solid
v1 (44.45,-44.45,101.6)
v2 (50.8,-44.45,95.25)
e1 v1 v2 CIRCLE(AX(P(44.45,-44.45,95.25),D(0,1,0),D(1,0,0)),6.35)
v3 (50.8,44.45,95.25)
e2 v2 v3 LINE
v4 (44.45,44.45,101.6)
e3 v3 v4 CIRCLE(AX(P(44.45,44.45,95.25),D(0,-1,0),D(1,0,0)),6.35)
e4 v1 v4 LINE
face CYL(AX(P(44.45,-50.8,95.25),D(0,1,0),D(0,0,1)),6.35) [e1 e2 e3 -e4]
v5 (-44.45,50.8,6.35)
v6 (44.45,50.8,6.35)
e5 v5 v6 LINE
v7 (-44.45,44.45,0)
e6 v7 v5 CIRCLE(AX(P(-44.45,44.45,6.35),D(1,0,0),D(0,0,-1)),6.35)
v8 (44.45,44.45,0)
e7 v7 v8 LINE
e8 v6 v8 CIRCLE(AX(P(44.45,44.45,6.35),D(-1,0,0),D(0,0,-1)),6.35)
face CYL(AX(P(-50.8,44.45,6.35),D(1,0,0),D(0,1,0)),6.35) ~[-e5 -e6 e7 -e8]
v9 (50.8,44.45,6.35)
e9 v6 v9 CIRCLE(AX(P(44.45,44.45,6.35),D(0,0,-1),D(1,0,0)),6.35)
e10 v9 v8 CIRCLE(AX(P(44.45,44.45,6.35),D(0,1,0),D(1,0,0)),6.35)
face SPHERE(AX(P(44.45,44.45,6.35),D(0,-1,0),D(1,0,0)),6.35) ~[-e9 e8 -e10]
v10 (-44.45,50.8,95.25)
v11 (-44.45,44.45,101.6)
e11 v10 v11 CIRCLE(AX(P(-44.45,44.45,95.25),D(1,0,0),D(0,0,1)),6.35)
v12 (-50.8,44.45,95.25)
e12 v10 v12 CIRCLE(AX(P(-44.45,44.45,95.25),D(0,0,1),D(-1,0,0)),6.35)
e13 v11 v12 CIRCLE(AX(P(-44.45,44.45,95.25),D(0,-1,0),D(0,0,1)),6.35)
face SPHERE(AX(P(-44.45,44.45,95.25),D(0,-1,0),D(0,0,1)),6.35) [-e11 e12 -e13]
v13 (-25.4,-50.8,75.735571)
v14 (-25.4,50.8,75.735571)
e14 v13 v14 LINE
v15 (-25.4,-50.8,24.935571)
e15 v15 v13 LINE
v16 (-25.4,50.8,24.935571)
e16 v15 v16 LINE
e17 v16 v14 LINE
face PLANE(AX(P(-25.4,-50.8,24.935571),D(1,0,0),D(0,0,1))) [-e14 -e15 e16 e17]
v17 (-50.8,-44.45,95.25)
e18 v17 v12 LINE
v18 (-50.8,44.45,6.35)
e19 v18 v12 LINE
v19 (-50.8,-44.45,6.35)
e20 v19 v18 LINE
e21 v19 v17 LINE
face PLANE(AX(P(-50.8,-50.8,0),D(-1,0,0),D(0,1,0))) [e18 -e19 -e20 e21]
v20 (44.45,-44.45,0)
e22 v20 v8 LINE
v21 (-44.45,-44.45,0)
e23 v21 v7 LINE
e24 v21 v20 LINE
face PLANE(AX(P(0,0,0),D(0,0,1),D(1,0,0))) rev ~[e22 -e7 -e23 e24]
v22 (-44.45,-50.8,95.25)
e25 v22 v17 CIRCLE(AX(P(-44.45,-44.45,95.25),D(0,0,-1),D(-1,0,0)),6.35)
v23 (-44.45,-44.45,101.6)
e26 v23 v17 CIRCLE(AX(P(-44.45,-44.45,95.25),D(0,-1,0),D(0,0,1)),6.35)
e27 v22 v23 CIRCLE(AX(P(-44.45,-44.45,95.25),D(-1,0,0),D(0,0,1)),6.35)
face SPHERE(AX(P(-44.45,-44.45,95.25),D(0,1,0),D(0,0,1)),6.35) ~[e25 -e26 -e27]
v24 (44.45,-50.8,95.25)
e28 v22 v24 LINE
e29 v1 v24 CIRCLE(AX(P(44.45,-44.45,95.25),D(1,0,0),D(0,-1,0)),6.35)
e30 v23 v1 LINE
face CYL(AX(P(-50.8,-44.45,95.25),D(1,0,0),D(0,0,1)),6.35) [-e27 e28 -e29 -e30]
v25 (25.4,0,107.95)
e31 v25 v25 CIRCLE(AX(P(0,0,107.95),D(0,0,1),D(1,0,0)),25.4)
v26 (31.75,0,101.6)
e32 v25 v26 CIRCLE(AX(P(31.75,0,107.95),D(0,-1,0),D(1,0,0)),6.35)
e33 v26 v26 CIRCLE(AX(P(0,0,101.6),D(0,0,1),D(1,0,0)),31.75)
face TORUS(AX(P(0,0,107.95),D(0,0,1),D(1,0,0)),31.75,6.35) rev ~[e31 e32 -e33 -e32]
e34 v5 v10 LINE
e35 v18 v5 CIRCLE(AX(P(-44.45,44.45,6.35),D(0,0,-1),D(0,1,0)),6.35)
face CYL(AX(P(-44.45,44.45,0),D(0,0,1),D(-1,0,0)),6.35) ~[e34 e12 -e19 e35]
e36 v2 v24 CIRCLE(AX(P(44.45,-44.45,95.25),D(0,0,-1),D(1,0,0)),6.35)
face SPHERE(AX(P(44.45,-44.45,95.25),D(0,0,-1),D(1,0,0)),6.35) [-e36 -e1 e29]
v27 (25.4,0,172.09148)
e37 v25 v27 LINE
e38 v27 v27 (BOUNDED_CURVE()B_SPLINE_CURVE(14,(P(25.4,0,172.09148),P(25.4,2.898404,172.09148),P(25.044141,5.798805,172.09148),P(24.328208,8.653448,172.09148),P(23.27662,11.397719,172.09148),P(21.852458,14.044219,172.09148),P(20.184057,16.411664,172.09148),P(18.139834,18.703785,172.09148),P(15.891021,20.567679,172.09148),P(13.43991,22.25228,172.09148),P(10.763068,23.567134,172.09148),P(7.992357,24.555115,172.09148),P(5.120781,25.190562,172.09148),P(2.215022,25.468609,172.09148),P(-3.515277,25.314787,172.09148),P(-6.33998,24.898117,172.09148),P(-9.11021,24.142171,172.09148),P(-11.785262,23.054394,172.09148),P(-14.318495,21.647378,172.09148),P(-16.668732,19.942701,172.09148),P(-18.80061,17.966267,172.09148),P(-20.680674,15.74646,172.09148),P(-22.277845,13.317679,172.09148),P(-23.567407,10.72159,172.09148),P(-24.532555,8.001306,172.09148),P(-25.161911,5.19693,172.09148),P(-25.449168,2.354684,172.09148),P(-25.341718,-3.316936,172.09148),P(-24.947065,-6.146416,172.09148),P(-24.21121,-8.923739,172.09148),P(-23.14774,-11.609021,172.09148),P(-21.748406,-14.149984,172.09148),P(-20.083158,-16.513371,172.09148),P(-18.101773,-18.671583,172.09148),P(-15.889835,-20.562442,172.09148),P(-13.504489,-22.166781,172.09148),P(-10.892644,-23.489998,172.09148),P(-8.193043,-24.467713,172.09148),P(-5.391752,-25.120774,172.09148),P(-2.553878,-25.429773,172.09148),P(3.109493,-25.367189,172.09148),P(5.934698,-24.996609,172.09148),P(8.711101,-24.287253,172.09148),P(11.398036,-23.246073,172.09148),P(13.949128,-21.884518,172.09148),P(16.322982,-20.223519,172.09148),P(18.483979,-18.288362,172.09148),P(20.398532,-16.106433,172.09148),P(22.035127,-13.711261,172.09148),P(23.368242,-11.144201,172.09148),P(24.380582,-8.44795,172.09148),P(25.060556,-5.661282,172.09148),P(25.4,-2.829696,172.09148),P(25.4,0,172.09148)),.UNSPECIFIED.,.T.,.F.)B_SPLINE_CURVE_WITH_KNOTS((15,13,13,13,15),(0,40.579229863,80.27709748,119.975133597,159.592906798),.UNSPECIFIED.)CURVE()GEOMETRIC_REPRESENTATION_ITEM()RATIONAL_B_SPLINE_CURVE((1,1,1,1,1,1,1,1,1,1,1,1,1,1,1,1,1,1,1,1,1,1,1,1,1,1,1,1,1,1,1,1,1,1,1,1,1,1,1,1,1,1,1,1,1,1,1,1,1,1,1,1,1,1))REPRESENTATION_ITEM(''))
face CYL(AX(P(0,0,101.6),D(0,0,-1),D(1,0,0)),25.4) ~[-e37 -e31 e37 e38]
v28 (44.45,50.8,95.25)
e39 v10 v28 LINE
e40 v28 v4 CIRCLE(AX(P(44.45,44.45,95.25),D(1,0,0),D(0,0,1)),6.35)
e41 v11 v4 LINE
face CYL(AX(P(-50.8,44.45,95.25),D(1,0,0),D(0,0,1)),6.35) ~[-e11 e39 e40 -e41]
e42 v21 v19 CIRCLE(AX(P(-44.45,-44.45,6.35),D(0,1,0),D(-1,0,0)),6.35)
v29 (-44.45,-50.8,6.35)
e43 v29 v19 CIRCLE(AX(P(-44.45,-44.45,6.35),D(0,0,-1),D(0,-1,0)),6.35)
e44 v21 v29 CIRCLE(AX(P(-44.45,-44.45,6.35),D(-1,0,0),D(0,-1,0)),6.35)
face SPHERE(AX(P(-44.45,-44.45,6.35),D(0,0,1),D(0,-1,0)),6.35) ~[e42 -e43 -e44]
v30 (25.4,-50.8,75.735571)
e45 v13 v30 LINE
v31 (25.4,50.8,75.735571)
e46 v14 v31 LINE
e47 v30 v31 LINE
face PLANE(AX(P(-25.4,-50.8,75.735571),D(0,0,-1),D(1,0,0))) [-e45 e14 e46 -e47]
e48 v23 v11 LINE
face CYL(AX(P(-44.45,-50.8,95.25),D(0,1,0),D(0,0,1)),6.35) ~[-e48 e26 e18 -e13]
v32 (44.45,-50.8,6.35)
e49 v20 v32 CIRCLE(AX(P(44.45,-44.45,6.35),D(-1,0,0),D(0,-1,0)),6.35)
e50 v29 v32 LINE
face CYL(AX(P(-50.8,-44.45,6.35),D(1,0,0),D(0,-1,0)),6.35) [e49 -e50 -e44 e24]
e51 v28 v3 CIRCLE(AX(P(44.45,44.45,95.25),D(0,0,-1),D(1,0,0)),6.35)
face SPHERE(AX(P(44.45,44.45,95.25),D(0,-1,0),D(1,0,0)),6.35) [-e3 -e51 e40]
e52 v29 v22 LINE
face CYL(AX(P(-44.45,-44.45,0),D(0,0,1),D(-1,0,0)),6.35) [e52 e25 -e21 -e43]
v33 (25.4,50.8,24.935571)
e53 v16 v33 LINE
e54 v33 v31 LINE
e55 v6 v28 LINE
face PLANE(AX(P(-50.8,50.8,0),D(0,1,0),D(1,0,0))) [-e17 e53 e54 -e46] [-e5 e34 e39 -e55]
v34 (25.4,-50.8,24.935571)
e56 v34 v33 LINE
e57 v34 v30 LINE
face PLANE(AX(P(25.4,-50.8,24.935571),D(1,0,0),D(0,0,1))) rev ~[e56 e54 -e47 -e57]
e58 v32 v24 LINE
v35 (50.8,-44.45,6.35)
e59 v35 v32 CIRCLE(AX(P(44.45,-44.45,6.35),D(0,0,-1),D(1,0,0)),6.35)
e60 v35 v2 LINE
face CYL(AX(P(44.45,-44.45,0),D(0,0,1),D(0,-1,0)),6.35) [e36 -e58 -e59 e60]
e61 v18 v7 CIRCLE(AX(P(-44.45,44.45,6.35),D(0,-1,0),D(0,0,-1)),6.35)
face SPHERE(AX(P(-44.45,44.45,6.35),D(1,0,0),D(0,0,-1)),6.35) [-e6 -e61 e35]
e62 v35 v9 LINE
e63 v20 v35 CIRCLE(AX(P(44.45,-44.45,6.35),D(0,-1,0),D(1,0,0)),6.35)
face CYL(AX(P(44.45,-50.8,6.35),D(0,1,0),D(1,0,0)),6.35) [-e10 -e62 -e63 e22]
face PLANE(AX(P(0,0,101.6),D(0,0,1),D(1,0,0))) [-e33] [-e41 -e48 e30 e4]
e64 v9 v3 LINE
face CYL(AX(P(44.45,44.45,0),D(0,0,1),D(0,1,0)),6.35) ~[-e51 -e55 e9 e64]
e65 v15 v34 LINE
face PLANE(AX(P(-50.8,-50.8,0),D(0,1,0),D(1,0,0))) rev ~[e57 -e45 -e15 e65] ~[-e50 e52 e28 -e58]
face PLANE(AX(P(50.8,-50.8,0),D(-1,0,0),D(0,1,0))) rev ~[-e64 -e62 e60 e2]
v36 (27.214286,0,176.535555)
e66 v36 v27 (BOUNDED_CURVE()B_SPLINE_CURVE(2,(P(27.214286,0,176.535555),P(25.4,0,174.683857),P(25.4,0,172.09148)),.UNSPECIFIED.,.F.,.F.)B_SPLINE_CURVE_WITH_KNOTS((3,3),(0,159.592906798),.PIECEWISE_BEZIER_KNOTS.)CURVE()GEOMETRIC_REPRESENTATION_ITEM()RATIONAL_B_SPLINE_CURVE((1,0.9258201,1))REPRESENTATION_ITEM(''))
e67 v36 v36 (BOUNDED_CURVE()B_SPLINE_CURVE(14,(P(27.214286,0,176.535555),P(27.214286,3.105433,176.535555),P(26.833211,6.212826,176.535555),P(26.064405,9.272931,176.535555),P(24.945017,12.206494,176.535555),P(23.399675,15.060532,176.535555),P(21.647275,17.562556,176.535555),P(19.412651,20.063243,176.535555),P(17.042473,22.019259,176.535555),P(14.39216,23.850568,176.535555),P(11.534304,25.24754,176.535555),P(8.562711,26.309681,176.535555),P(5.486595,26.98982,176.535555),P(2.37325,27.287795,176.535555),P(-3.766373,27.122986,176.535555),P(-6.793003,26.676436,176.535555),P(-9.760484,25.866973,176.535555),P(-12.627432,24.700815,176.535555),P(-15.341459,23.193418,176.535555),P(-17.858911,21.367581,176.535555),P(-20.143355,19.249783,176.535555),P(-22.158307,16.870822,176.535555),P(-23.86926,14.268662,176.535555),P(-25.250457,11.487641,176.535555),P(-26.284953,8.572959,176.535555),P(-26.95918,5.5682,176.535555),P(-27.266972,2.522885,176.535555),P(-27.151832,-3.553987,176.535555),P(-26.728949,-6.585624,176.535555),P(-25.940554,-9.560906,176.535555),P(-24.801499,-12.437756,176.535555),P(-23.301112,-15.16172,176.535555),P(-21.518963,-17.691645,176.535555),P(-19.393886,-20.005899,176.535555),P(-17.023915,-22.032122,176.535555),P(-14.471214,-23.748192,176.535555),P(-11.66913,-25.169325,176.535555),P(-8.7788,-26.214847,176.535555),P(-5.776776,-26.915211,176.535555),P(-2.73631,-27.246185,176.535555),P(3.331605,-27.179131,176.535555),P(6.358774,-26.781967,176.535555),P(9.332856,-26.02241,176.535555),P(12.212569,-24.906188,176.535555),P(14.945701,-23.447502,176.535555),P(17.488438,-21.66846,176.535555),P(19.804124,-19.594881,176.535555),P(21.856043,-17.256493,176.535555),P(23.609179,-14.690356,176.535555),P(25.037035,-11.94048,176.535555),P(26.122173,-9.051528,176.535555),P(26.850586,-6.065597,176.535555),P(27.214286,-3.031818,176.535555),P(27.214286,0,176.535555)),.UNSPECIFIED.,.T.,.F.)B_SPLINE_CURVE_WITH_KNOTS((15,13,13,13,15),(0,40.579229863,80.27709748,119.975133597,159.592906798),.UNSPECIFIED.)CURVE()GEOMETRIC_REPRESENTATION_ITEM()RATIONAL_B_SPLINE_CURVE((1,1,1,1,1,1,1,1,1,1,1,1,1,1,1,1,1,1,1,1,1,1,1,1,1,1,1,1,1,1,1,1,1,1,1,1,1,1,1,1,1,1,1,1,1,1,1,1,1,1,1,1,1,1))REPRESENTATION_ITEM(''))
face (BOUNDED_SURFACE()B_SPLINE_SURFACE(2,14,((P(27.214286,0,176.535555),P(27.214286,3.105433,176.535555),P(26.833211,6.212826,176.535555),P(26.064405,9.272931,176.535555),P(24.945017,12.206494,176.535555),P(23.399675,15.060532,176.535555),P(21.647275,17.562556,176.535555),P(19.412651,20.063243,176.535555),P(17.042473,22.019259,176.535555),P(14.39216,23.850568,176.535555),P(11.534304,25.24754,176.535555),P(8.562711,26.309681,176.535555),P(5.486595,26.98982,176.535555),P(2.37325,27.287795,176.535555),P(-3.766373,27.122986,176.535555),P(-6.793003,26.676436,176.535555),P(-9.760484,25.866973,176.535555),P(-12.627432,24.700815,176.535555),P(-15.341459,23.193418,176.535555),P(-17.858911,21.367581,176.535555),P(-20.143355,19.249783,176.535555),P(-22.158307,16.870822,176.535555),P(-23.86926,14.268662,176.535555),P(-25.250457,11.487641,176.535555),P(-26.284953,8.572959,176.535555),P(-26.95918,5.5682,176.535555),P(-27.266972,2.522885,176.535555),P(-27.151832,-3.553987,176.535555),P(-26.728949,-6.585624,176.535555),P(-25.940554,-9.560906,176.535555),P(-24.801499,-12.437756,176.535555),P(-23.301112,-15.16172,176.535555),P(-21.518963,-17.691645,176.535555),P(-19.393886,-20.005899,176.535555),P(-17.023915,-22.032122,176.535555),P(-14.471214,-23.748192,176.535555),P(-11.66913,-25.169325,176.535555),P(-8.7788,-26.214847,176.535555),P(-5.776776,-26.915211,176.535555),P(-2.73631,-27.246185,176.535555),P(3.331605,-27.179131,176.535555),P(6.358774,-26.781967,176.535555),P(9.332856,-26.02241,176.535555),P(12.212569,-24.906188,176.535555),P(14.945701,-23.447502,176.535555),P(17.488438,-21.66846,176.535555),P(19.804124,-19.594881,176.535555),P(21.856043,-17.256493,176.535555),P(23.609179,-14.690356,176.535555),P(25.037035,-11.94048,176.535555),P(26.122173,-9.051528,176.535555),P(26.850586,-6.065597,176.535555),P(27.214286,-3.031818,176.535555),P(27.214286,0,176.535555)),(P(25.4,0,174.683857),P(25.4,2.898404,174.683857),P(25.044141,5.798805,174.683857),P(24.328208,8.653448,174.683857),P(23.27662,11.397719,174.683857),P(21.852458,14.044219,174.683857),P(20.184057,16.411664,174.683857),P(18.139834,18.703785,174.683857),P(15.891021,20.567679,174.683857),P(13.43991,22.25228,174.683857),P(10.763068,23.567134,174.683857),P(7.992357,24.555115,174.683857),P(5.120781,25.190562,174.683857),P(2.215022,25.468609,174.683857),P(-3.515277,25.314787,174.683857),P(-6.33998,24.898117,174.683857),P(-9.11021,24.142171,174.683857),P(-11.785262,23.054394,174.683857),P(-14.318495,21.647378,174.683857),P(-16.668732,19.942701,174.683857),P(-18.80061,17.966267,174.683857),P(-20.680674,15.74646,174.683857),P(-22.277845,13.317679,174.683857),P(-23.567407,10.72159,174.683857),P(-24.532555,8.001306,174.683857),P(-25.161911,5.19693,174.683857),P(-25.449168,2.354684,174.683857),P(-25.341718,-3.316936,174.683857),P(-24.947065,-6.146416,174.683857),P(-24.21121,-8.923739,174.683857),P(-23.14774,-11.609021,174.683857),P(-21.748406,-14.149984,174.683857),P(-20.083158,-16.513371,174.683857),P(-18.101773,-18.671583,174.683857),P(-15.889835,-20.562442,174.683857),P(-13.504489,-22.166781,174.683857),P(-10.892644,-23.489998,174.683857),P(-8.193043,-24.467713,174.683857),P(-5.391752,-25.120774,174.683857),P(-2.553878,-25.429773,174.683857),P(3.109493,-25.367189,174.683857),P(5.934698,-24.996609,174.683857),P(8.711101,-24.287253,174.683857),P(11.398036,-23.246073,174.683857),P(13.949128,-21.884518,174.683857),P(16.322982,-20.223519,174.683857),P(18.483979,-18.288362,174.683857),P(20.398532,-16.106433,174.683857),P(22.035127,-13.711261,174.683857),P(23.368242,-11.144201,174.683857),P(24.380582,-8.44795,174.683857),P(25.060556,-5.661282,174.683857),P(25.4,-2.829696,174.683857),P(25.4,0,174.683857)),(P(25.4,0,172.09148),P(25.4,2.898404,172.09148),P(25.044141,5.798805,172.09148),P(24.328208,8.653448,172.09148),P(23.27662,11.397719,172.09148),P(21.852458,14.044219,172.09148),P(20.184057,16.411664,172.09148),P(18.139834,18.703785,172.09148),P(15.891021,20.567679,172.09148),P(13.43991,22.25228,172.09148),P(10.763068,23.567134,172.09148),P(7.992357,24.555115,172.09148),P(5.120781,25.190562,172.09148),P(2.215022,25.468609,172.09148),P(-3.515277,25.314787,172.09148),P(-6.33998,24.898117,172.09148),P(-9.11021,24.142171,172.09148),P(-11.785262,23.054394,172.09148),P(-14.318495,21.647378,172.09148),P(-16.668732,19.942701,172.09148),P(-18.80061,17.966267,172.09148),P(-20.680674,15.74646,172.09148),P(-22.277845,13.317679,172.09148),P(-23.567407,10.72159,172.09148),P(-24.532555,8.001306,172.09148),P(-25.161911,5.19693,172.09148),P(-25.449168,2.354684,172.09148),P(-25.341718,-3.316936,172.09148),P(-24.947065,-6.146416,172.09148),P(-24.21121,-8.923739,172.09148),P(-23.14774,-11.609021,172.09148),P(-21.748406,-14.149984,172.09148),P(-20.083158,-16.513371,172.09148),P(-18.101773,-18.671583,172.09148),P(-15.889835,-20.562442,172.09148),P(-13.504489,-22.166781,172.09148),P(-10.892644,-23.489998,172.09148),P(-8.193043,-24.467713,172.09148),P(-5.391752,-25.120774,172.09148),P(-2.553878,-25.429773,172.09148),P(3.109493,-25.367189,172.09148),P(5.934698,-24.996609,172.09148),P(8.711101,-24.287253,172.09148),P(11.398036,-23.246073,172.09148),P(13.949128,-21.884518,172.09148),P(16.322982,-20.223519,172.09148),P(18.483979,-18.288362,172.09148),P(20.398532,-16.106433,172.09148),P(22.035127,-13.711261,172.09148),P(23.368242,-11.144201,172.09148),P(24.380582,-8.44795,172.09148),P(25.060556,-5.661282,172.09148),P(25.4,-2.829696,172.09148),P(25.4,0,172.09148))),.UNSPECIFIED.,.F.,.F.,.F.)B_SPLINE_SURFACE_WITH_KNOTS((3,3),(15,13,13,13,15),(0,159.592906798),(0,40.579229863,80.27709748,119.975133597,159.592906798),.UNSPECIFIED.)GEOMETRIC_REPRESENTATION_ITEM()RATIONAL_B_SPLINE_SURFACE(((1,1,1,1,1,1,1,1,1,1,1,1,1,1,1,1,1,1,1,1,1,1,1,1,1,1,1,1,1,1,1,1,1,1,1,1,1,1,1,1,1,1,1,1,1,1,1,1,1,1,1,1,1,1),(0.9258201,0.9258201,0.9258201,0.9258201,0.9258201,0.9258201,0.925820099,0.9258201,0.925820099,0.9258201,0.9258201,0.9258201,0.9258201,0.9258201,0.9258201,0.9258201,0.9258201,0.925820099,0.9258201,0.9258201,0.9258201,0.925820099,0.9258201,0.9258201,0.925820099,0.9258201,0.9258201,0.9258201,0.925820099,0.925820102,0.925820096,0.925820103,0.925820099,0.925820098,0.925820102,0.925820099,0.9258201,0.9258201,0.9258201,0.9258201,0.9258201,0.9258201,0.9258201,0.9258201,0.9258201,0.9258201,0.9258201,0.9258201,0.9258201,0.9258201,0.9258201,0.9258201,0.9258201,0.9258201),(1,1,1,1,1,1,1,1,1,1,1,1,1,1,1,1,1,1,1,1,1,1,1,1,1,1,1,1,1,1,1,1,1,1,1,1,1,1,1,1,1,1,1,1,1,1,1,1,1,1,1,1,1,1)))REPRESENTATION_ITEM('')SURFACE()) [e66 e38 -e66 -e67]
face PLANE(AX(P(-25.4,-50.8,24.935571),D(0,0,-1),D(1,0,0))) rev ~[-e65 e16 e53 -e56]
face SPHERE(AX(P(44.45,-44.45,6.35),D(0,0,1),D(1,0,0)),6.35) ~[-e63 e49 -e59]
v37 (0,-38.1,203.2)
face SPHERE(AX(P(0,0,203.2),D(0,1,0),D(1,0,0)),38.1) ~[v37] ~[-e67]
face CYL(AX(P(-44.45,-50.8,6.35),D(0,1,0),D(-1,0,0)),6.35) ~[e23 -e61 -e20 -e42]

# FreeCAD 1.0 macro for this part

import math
import FreeCAD as App
import Part
import Sketcher
from FreeCAD import Vector
Q = App.Units.Quantity


def edges_at(feature, points):
    """Names of the edges that pass closest to the given points."""
    edges = feature.Shape.Edges
    near = lambda p: min(range(len(edges)), key=lambda i: edges[i].distToShape(Part.Vertex(*p))[0])
    return sorted({f"Edge{near(p) + 1}" for p in points})

doc = App.newDocument("Part")
body = doc.addObject("PartDesign::Body", "Body")

# Sketch on XY plane
sketch1 = body.newObject("Sketcher::SketchObject", "Sketch")
sketch1.AttachmentSupport = (doc.getObject("XY_Plane"), [""])
sketch1.MapMode = "FlatFace"
sketch1.addGeometry(Part.LineSegment(Vector(-50.8, 50.8, 0), Vector(-50.8, -50.8, 0)), False)
sketch1.addGeometry(Part.LineSegment(Vector(-50.8, -50.8, 0), Vector(50.8, -50.8, 0)), False)
sketch1.addGeometry(Part.LineSegment(Vector(50.8, -50.8, 0), Vector(50.8, 50.8, 0)), False)
sketch1.addGeometry(Part.LineSegment(Vector(50.8, 50.8, 0), Vector(-50.8, 50.8, 0)), False)
sketch1.addConstraint(Sketcher.Constraint("Coincident", 0, 2, 1, 1))
sketch1.addConstraint(Sketcher.Constraint("Coincident", 1, 2, 2, 1))
sketch1.addConstraint(Sketcher.Constraint("Coincident", 2, 2, 3, 1))
sketch1.addConstraint(Sketcher.Constraint("Coincident", 3, 2, 0, 1))
sketch1.addConstraint(Sketcher.Constraint("Vertical", 0))
sketch1.addConstraint(Sketcher.Constraint("Horizontal", 1))
sketch1.addConstraint(Sketcher.Constraint("Vertical", 2))
sketch1.addConstraint(Sketcher.Constraint("Horizontal", 3))
sketch1.addConstraint(Sketcher.Constraint("Symmetric", 0, 2, 2, 2, -1, 1))
sketch1.addConstraint(Sketcher.Constraint("Equal", 3, 0))
sketch1.addConstraint(Sketcher.Constraint("DistanceX", 1, 1, 1, 2, Q("4 in")))
pad1 = body.newObject("PartDesign::Pad", "Pad")
pad1.Profile = sketch1
pad1.Length = Q("4 in")

# Sketch on XY plane
sketch2 = body.newObject("Sketcher::SketchObject", "Sketch001")
sketch2.AttachmentSupport = (doc.getObject("XY_Plane"), [""])
sketch2.MapMode = "FlatFace"
sketch2.AttachmentOffset = App.Placement(Vector(0, 0, 4 * 25.4), App.Rotation())
sketch2.addGeometry(Part.Circle(Vector(0, 0, 0), Vector(0, 0, 1), 25.4), False)
sketch2.addConstraint(Sketcher.Constraint("Coincident", 0, 3, -1, 1))
sketch2.addConstraint(Sketcher.Constraint("Diameter", 0, Q("2 in")))
pad2 = body.newObject("PartDesign::Pad", "Pad001")
pad2.Profile = sketch2
pad2.Length = Q("4 in")

# Sketch on XY plane
sketch3 = body.newObject("Sketcher::SketchObject", "Sketch002")
sketch3.AttachmentSupport = (doc.getObject("XY_Plane"), [""])
sketch3.MapMode = "FlatFace"
sketch3.AttachmentOffset = App.Placement(Vector(0, 0, 8 * 25.4), App.Rotation())
sketch3.addGeometry(Part.ArcOfCircle(Part.Circle(Vector(0, 0, 0), Vector(0, 0, 1), 38.1), math.radians(-90), math.radians(90)), False)
sketch3.addGeometry(Part.LineSegment(Vector(0, 38.1, 0), Vector(0, -38.1, 0)), False)
sketch3.addConstraint(Sketcher.Constraint("Coincident", 0, 1, 1, 2))
sketch3.addConstraint(Sketcher.Constraint("Coincident", 1, 1, 0, 2))
sketch3.addConstraint(Sketcher.Constraint("Vertical", 1))
sketch3.addConstraint(Sketcher.Constraint("Coincident", 0, 3, -1, 1))
sketch3.addConstraint(Sketcher.Constraint("PointOnObject", 0, 1, -2))
sketch3.addConstraint(Sketcher.Constraint("Radius", 0, Q("1.5 in")))
revolution = body.newObject("PartDesign::Revolution", "Revolution")
revolution.Profile = sketch3
revolution.ReferenceAxis = (sketch3, ["V_Axis"])
revolution.Angle = 360

# Sketch on XZ plane
sketch4 = body.newObject("Sketcher::SketchObject", "Sketch003")
sketch4.AttachmentSupport = (doc.getObject("XZ_Plane"), [""])
sketch4.MapMode = "FlatFace"
sketch4.AttachmentOffset = App.Placement(Vector(0, 0, 2 * 25.4), App.Rotation())
sketch4.addGeometry(Part.LineSegment(Vector(-25.4, 75.735571, 0), Vector(-25.4, 24.935571, 0)), False)
sketch4.addGeometry(Part.LineSegment(Vector(-25.4, 24.935571, 0), Vector(25.4, 24.935571, 0)), False)
sketch4.addGeometry(Part.LineSegment(Vector(25.4, 24.935571, 0), Vector(25.4, 75.735571, 0)), False)
sketch4.addGeometry(Part.LineSegment(Vector(25.4, 75.735571, 0), Vector(-25.4, 75.735571, 0)), False)
sketch4.addConstraint(Sketcher.Constraint("Coincident", 0, 2, 1, 1))
sketch4.addConstraint(Sketcher.Constraint("Coincident", 1, 2, 2, 1))
sketch4.addConstraint(Sketcher.Constraint("Coincident", 2, 2, 3, 1))
sketch4.addConstraint(Sketcher.Constraint("Coincident", 3, 2, 0, 1))
sketch4.addConstraint(Sketcher.Constraint("Vertical", 0))
sketch4.addConstraint(Sketcher.Constraint("Horizontal", 1))
sketch4.addConstraint(Sketcher.Constraint("Vertical", 2))
sketch4.addConstraint(Sketcher.Constraint("Horizontal", 3))
sketch4.addConstraint(Sketcher.Constraint("Equal", 3, 0))
sketch4.addConstraint(Sketcher.Constraint("DistanceX", 1, 1, 1, 2, Q("2 in")))
sketch4.addConstraint(Sketcher.Constraint("DistanceX", 0, 2, -1, 1, Q("1 in")))
sketch4.addConstraint(Sketcher.Constraint("DistanceY", -1, 1, 0, 2, 24.935571))
pocket1 = body.newObject("PartDesign::Pocket", "Pocket")
pocket1.Profile = sketch4
pocket1.Length = Q("4 in")
doc.recompute()

fillet = body.newObject("PartDesign::Fillet", "Fillet")
fillet.Base = (pocket1, edges_at(pocket1, [
    (50.8, -50.8, 50.8),
    (50.8, 0, 101.6),
    (50.8, 0, 0),
    (50.8, 50.8, 50.8),
    (-50.8, 0, 101.6),
    (0, -50.8, 101.6),
    (-50.8, -50.8, 50.8),
    (0, 50.8, 101.6),
    (0, -50.8, 0),
    (0, 50.8, 0),
    (-50.8, 0, 0),
    (-50.8, 50.8, 50.8),
    (-25.4, 0, 101.6),
    (-25.4, 0, 174.802),
]))
fillet.Radius = Q("0.25 in")

doc.recompute()
